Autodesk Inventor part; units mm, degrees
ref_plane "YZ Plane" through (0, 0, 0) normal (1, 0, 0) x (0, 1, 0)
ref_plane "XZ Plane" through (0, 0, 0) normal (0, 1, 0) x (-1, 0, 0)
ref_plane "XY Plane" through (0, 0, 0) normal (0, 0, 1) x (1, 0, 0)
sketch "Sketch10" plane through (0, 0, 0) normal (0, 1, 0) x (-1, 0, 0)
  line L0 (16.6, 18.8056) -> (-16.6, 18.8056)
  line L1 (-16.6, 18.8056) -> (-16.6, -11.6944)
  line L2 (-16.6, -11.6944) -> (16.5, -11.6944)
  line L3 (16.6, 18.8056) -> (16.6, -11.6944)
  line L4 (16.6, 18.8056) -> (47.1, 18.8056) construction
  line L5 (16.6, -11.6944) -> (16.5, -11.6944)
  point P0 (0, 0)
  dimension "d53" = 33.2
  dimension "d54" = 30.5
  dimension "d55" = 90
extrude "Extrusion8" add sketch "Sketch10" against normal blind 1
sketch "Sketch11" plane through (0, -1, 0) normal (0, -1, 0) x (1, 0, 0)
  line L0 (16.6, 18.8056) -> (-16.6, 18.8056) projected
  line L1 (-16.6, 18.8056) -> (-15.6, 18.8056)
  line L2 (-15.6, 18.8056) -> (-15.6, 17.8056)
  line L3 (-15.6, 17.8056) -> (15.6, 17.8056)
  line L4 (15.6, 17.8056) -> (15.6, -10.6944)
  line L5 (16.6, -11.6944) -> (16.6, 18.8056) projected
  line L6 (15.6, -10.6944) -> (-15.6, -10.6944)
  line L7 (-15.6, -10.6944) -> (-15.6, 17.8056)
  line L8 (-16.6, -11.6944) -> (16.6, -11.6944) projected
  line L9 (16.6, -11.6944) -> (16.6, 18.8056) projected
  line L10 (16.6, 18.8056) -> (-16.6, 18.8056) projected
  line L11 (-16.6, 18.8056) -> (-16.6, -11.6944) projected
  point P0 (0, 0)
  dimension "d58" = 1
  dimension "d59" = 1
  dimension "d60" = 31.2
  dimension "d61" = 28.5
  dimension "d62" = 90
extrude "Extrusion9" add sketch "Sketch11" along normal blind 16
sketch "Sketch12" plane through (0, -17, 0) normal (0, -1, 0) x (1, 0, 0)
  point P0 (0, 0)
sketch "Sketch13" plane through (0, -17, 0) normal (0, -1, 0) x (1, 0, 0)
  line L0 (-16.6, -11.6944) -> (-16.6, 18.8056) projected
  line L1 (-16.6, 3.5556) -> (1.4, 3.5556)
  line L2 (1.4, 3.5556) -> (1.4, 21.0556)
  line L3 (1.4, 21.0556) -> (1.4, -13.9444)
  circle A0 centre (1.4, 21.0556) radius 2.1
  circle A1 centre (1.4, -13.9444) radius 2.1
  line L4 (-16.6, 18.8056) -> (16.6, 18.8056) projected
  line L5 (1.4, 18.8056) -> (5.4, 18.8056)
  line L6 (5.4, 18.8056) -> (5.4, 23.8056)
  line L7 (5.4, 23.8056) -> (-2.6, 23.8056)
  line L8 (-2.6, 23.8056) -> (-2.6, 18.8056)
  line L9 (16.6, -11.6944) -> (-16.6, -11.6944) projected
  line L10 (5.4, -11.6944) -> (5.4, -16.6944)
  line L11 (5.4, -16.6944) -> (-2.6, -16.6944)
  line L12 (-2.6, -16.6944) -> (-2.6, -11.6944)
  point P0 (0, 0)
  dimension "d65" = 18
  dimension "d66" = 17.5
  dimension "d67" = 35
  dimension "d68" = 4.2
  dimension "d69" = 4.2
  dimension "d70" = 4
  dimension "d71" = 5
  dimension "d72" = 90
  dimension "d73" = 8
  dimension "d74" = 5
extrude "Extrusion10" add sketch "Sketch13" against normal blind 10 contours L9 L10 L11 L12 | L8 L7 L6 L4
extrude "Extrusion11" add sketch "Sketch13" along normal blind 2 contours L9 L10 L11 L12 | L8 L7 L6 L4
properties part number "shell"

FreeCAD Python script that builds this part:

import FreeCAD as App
import Part
import Sketcher

V = App.Vector


def add_polygon(sketch, points):
    """Adds a closed chain of lines whose ends are joined by coincident constraints."""
    first, n = sketch.GeometryCount, len(points)
    for a, b in zip(points, points[1:] + points[:1]):
        sketch.addGeometry(Part.LineSegment(App.Vector(*a, 0), App.Vector(*b, 0)), False)
    for i in range(n):
        sketch.addConstraint(Sketcher.Constraint("Coincident", first + i, 2, first + (i + 1) % n, 1))

doc = App.newDocument("Part")
body = doc.addObject("PartDesign::Body", "Body")

# Sketch on XZ plane
sketch1 = body.newObject("Sketcher::SketchObject", "Sketch")
sketch1.AttachmentSupport = (doc.getObject("XZ_Plane"), [""])
sketch1.MapMode = "FlatFace"
add_polygon(sketch1, [(-17, -12), (-17, 19), (17, 19), (17, -12)])  # lines 0-3
sketch1.addConstraint([
    Sketcher.Constraint("Vertical", 0),
    Sketcher.Constraint("Horizontal", 1),
    Sketcher.Constraint("Vertical", 2),
    Sketcher.Constraint("Horizontal", 3),
    Sketcher.Constraint("DistanceX", 1, 1, 1, 2, 33.2),
    Sketcher.Constraint("DistanceY", 0, 1, 0, 2, 30.5),
    Sketcher.Constraint("DistanceX", 0, 2, -1, 1, 16.6),
    Sketcher.Constraint("DistanceY", -1, 1, 0, 2, 18.8056),
])
pad1 = body.newObject("PartDesign::Pad", "Pad")
pad1.Profile = sketch1
pad1.Length = 1

# Sketch on XZ plane
sketch2 = body.newObject("Sketcher::SketchObject", "Sketch001")
sketch2.AttachmentSupport = (doc.getObject("XZ_Plane"), [""])
sketch2.MapMode = "FlatFace"
sketch2.AttachmentOffset = App.Placement(V(0, 0, 1), App.Rotation())
add_polygon(sketch2, [(16.6, -11.7), (16.6, 18.8), (-15.6, 18.8), (-16.6, 18.8), (-16.6, -11.7)])  # lines 0-4
add_polygon(sketch2, [(-15.6, -10.7), (-15.6, 17.8), (15.6, 17.8), (15.6, -10.7)])  # lines 5-8
sketch2.addConstraint([
    Sketcher.Constraint("Vertical", 0),
    Sketcher.Constraint("Horizontal", 1),
    Sketcher.Constraint("Horizontal", 2),
    Sketcher.Constraint("Vertical", 3),
    Sketcher.Constraint("Horizontal", 4),
    Sketcher.Constraint("Vertical", 5),
    Sketcher.Constraint("Horizontal", 6),
    Sketcher.Constraint("Vertical", 7),
    Sketcher.Constraint("Horizontal", 8),
    Sketcher.Constraint("Vertical", 1, 2, 5, 2),
    Sketcher.Constraint("DistanceX", 2, 2, 2, 1, 1.0),
    Sketcher.Constraint("DistanceX", 6, 1, 6, 2, 31.2),
    Sketcher.Constraint("DistanceY", 5, 1, 5, 2, 28.5),
    Sketcher.Constraint("DistanceY", 5, 2, 1, 2, 1.0),
    Sketcher.Constraint("DistanceX", 6, 2, 0, 2, 1.0),
    Sketcher.Constraint("DistanceY", 4, 2, 7, 2, 1.0),
    Sketcher.Constraint("DistanceX", -1, 1, 0, 2, 16.6),
    Sketcher.Constraint("DistanceY", -1, 1, 0, 2, 18.8056),
])
pad2 = body.newObject("PartDesign::Pad", "Pad001")
pad2.Profile = sketch2
pad2.Length = 16

# Sketch on XZ plane
sketch3 = body.newObject("Sketcher::SketchObject", "Sketch002")
sketch3.AttachmentSupport = (doc.getObject("XZ_Plane"), [""])
sketch3.MapMode = "FlatFace"
sketch3.AttachmentOffset = App.Placement(V(0, 0, 17), App.Rotation())
add_polygon(sketch3, [(1.4, -11.7), (-2.6, -11.7), (-2.6, -16.7), (5.4, -16.7), (5.4, -11.7)])  # lines 0-4
sketch3.addGeometry(Part.Circle(V(1.4, -13.9, 0), V(0, 0, 1), 2.1), False)  # 5
add_polygon(sketch3, [(-2.6, 23.8), (-2.6, 18.8), (1.4, 18.8), (5.4, 18.8), (5.4, 23.8)])  # lines 6-10
sketch3.addGeometry(Part.Circle(V(1.4, 21.1, 0), V(0, 0, 1), 2.1), False)  # 11
sketch3.addConstraint([
    Sketcher.Constraint("Horizontal", 0),
    Sketcher.Constraint("Vertical", 1),
    Sketcher.Constraint("Horizontal", 2),
    Sketcher.Constraint("Vertical", 3),
    Sketcher.Constraint("Horizontal", 4),
    Sketcher.Constraint("Vertical", 6),
    Sketcher.Constraint("Horizontal", 7),
    Sketcher.Constraint("Horizontal", 8),
    Sketcher.Constraint("Vertical", 9),
    Sketcher.Constraint("Horizontal", 10),
    Sketcher.Constraint("Equal", 5, 11),
    Sketcher.Constraint("Vertical", 5, 3, 11, 3),
    Sketcher.Constraint("Vertical", 11, 3, 4, 2),
    Sketcher.Constraint("Vertical", 1, 2, 6, 2),
    Sketcher.Constraint("Vertical", 4, 2, 7, 2),
    Sketcher.Constraint("Vertical", 3, 2, 8, 2),
    Sketcher.Constraint("Equal", 0, 4),
    Sketcher.Constraint("Equal", 3, 6),
    Sketcher.Constraint("Diameter", 5, 4.2),
    Sketcher.Constraint("DistanceX", 0, 2, 0, 1, 4.0),
    Sketcher.Constraint("DistanceY", 1, 2, 1, 1, 5.0),
    Sketcher.Constraint("DistanceY", 5, 3, 11, 3, 35.0),
    Sketcher.Constraint("DistanceX", -1, 1, 5, 3, 1.4),
    Sketcher.Constraint("DistanceY", 0, 2, 6, 2, 30.5),
    Sketcher.Constraint("DistanceY", 5, 3, 0, 2, 2.25),
    Sketcher.Constraint("DistanceY", 5, 3, -1, 1, 13.9444),
])
pad3 = body.newObject("PartDesign::Pad", "Pad002")
pad3.Profile = sketch3
pad3.Length = 10
pad3.Reversed = True

# Sketch on XZ plane
sketch4 = body.newObject("Sketcher::SketchObject", "Sketch003")
sketch4.AttachmentSupport = (doc.getObject("XZ_Plane"), [""])
sketch4.MapMode = "FlatFace"
sketch4.AttachmentOffset = App.Placement(V(0, 0, 17), App.Rotation())
add_polygon(sketch4, [(1.4, -11.7), (-2.6, -11.7), (-2.6, -16.7), (5.4, -16.7), (5.4, -11.7)])  # lines 0-4
sketch4.addGeometry(Part.Circle(V(1.4, -13.9, 0), V(0, 0, 1), 2.1), False)  # 5
add_polygon(sketch4, [(-2.6, 23.8), (-2.6, 18.8), (1.4, 18.8), (5.4, 18.8), (5.4, 23.8)])  # lines 6-10
sketch4.addGeometry(Part.Circle(V(1.4, 21.1, 0), V(0, 0, 1), 2.1), False)  # 11
sketch4.addConstraint([
    Sketcher.Constraint("Horizontal", 0),
    Sketcher.Constraint("Vertical", 1),
    Sketcher.Constraint("Horizontal", 2),
    Sketcher.Constraint("Vertical", 3),
    Sketcher.Constraint("Horizontal", 4),
    Sketcher.Constraint("Vertical", 6),
    Sketcher.Constraint("Horizontal", 7),
    Sketcher.Constraint("Horizontal", 8),
    Sketcher.Constraint("Vertical", 9),
    Sketcher.Constraint("Horizontal", 10),
    Sketcher.Constraint("Equal", 5, 11),
    Sketcher.Constraint("Vertical", 5, 3, 11, 3),
    Sketcher.Constraint("Vertical", 11, 3, 4, 2),
    Sketcher.Constraint("Vertical", 1, 2, 6, 2),
    Sketcher.Constraint("Vertical", 4, 2, 7, 2),
    Sketcher.Constraint("Vertical", 3, 2, 8, 2),
    Sketcher.Constraint("Equal", 0, 4),
    Sketcher.Constraint("Equal", 3, 6),
    Sketcher.Constraint("Diameter", 5, 4.2),
    Sketcher.Constraint("DistanceX", 0, 2, 0, 1, 4.0),
    Sketcher.Constraint("DistanceY", 1, 2, 1, 1, 5.0),
    Sketcher.Constraint("DistanceY", 5, 3, 11, 3, 35.0),
    Sketcher.Constraint("DistanceX", -1, 1, 5, 3, 1.4),
    Sketcher.Constraint("DistanceY", 0, 2, 6, 2, 30.5),
    Sketcher.Constraint("DistanceY", 5, 3, 0, 2, 2.25),
    Sketcher.Constraint("DistanceY", 5, 3, -1, 1, 13.9444),
])
pad4 = body.newObject("PartDesign::Pad", "Pad003")
pad4.Profile = sketch4
pad4.Length = 2

doc.recompute()
